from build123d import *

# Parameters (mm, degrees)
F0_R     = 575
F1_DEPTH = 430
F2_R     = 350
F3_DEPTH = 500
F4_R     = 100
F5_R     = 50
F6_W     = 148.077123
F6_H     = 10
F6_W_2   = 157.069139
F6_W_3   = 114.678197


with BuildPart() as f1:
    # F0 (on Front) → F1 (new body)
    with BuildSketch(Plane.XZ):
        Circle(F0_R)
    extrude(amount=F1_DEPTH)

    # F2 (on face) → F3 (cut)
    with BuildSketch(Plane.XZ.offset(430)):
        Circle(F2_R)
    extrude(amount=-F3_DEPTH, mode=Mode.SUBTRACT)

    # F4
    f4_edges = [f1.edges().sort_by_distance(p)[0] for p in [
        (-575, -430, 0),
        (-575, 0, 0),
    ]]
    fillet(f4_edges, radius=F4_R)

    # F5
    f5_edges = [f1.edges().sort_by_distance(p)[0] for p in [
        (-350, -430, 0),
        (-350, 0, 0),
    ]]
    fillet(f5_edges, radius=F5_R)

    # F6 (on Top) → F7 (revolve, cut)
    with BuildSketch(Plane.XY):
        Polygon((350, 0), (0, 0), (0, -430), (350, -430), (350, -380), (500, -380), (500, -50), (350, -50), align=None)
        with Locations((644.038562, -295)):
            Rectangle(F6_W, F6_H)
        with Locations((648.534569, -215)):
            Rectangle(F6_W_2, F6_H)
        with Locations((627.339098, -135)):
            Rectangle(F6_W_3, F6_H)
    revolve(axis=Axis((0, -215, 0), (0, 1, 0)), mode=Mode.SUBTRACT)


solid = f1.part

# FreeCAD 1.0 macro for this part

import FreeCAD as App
import Part
import Sketcher
from FreeCAD import Vector
Q = App.Units.Quantity


def edges_at(feature, points):
    """Names of the edges that pass closest to the given points."""
    edges = feature.Shape.Edges
    near = lambda p: min(range(len(edges)), key=lambda i: edges[i].distToShape(Part.Vertex(*p))[0])
    return sorted({f"Edge{near(p) + 1}" for p in points})


def add_polygon(sketch, points):
    """Adds a closed chain of lines whose ends are joined by coincident constraints."""
    first, n = sketch.GeometryCount, len(points)
    for a, b in zip(points, points[1:] + points[:1]):
        sketch.addGeometry(Part.LineSegment(App.Vector(*a, 0), App.Vector(*b, 0)), False)
    for i in range(n):
        sketch.addConstraint(Sketcher.Constraint("Coincident", first + i, 2, first + (i + 1) % n, 1))

doc = App.newDocument("Part")
body = doc.addObject("PartDesign::Body", "Body")

sketch1 = body.newObject("Sketcher::SketchObject", "Sketch")
sketch1.AttachmentSupport = (doc.getObject("XZ_Plane"), [""])
sketch1.MapMode = "FlatFace"
sketch1.addGeometry(Part.Circle(Vector(0, 0, 0), Vector(0, 0, 1), 575), False)
sketch1.addConstraint(Sketcher.Constraint("Coincident", 0, 3, -1, 1))
sketch1.addConstraint(Sketcher.Constraint("Diameter", 0, Q("1150 mm")))
pad1 = body.newObject("PartDesign::Pad", "Pad")
pad1.Profile = sketch1
pad1.Length = 430

sketch2 = body.newObject("Sketcher::SketchObject", "Sketch001")
sketch2.AttachmentSupport = (doc.getObject("XZ_Plane"), [""])
sketch2.MapMode = "FlatFace"
sketch2.AttachmentOffset = App.Placement(Vector(0, 0, 430), App.Rotation())
sketch2.addGeometry(Part.Circle(Vector(0, 0, 0), Vector(0, 0, 1), 350), False)
sketch2.addConstraint(Sketcher.Constraint("Coincident", 0, 3, -1, 1))
sketch2.addConstraint(Sketcher.Constraint("Diameter", 0, Q("700 mm")))
pocket1 = body.newObject("PartDesign::Pocket", "Pocket")
pocket1.Profile = sketch2
pocket1.Length = 500
doc.recompute()

fillet = body.newObject("PartDesign::Fillet", "Fillet")
fillet.Base = (pocket1, edges_at(pocket1, [(-575, -430, 0), (-575, 0, 0)]))
fillet.Radius = 100
doc.recompute()

fillet2 = body.newObject("PartDesign::Fillet", "Fillet001")
fillet2.Base = (fillet, edges_at(fillet, [(-350, -430, 0), (-350, 0, 0)]))
fillet2.Radius = 50

sketch3 = body.newObject("Sketcher::SketchObject", "Sketch002")
sketch3.AttachmentSupport = (doc.getObject("XY_Plane"), [""])
sketch3.MapMode = "FlatFace"
add_polygon(sketch3, [(350, 0), (0, 0), (0, -430), (350, -430), (350, -380), (500, -380), (500, -50), (350, -50)])
add_polygon(sketch3, [(570, -290), (570, -300), (718, -300), (718, -290)])
add_polygon(sketch3, [(570, -210), (570, -220), (727, -220), (727, -210)])
add_polygon(sketch3, [(570, -130), (570, -140), (685, -140), (685, -130)])
sketch3.addConstraint(Sketcher.Constraint("Horizontal", 0))
sketch3.addConstraint(Sketcher.Constraint("Vertical", 1))
sketch3.addConstraint(Sketcher.Constraint("Horizontal", 2))
sketch3.addConstraint(Sketcher.Constraint("Vertical", 3))
sketch3.addConstraint(Sketcher.Constraint("Horizontal", 4))
sketch3.addConstraint(Sketcher.Constraint("Vertical", 5))
sketch3.addConstraint(Sketcher.Constraint("Horizontal", 6))
sketch3.addConstraint(Sketcher.Constraint("Vertical", 7))
sketch3.addConstraint(Sketcher.Constraint("Vertical", 8))
sketch3.addConstraint(Sketcher.Constraint("Horizontal", 9))
sketch3.addConstraint(Sketcher.Constraint("Vertical", 10))
sketch3.addConstraint(Sketcher.Constraint("Horizontal", 11))
sketch3.addConstraint(Sketcher.Constraint("Vertical", 12))
sketch3.addConstraint(Sketcher.Constraint("Horizontal", 13))
sketch3.addConstraint(Sketcher.Constraint("Vertical", 14))
sketch3.addConstraint(Sketcher.Constraint("Horizontal", 15))
sketch3.addConstraint(Sketcher.Constraint("Vertical", 16))
sketch3.addConstraint(Sketcher.Constraint("Horizontal", 17))
sketch3.addConstraint(Sketcher.Constraint("Vertical", 18))
sketch3.addConstraint(Sketcher.Constraint("Horizontal", 19))
sketch3.addConstraint(Sketcher.Constraint("Coincident", 0, 2, -1, 1))
sketch3.addConstraint(Sketcher.Constraint("Vertical", 3, 2, 6, 2))
sketch3.addConstraint(Sketcher.Constraint("Vertical", 11, 2, 12, 2))
sketch3.addConstraint(Sketcher.Constraint("Vertical", 15, 2, 16, 2))
sketch3.addConstraint(Sketcher.Constraint("Equal", 3, 7))
sketch3.addConstraint(Sketcher.Constraint("Equal", 10, 12))
sketch3.addConstraint(Sketcher.Constraint("Equal", 14, 16))
sketch3.addConstraint(Sketcher.Constraint("DistanceX", 0, 2, 0, 1, Q("350 mm")))
sketch3.addConstraint(Sketcher.Constraint("DistanceX", 4, 1, 4, 2, Q("150 mm")))
sketch3.addConstraint(Sketcher.Constraint("DistanceY", 1, 2, 1, 1, Q("430 mm")))
sketch3.addConstraint(Sketcher.Constraint("DistanceY", 3, 1, 3, 2, Q("50 mm")))
sketch3.addConstraint(Sketcher.Constraint("DistanceY", 8, 2, 8, 1, Q("10 mm")))
sketch3.addConstraint(Sketcher.Constraint("DistanceX", -1, 1, 8, 2, Q("570.000001 mm")))
sketch3.addConstraint(Sketcher.Constraint("DistanceY", 8, 2, -1, 1, Q("300 mm")))
sketch3.addConstraint(Sketcher.Constraint("DistanceY", 12, 2, -1, 1, Q("220 mm")))
sketch3.addConstraint(Sketcher.Constraint("DistanceY", 16, 2, -1, 1, Q("140 mm")))
sketch3.addConstraint(Sketcher.Constraint("DistanceX", 13, 1, 13, 2, Q("157.069139 mm")))
sketch3.addConstraint(Sketcher.Constraint("DistanceX", 9, 1, 9, 2, Q("148.077123 mm")))
sketch3.addConstraint(Sketcher.Constraint("DistanceX", 17, 1, 17, 2, Q("114.678197 mm")))
groove = body.newObject("PartDesign::Groove", "Groove")
groove.Profile = sketch3
groove.ReferenceAxis = (sketch3, ["V_Axis"])
groove.Angle = 360

doc.recompute()
